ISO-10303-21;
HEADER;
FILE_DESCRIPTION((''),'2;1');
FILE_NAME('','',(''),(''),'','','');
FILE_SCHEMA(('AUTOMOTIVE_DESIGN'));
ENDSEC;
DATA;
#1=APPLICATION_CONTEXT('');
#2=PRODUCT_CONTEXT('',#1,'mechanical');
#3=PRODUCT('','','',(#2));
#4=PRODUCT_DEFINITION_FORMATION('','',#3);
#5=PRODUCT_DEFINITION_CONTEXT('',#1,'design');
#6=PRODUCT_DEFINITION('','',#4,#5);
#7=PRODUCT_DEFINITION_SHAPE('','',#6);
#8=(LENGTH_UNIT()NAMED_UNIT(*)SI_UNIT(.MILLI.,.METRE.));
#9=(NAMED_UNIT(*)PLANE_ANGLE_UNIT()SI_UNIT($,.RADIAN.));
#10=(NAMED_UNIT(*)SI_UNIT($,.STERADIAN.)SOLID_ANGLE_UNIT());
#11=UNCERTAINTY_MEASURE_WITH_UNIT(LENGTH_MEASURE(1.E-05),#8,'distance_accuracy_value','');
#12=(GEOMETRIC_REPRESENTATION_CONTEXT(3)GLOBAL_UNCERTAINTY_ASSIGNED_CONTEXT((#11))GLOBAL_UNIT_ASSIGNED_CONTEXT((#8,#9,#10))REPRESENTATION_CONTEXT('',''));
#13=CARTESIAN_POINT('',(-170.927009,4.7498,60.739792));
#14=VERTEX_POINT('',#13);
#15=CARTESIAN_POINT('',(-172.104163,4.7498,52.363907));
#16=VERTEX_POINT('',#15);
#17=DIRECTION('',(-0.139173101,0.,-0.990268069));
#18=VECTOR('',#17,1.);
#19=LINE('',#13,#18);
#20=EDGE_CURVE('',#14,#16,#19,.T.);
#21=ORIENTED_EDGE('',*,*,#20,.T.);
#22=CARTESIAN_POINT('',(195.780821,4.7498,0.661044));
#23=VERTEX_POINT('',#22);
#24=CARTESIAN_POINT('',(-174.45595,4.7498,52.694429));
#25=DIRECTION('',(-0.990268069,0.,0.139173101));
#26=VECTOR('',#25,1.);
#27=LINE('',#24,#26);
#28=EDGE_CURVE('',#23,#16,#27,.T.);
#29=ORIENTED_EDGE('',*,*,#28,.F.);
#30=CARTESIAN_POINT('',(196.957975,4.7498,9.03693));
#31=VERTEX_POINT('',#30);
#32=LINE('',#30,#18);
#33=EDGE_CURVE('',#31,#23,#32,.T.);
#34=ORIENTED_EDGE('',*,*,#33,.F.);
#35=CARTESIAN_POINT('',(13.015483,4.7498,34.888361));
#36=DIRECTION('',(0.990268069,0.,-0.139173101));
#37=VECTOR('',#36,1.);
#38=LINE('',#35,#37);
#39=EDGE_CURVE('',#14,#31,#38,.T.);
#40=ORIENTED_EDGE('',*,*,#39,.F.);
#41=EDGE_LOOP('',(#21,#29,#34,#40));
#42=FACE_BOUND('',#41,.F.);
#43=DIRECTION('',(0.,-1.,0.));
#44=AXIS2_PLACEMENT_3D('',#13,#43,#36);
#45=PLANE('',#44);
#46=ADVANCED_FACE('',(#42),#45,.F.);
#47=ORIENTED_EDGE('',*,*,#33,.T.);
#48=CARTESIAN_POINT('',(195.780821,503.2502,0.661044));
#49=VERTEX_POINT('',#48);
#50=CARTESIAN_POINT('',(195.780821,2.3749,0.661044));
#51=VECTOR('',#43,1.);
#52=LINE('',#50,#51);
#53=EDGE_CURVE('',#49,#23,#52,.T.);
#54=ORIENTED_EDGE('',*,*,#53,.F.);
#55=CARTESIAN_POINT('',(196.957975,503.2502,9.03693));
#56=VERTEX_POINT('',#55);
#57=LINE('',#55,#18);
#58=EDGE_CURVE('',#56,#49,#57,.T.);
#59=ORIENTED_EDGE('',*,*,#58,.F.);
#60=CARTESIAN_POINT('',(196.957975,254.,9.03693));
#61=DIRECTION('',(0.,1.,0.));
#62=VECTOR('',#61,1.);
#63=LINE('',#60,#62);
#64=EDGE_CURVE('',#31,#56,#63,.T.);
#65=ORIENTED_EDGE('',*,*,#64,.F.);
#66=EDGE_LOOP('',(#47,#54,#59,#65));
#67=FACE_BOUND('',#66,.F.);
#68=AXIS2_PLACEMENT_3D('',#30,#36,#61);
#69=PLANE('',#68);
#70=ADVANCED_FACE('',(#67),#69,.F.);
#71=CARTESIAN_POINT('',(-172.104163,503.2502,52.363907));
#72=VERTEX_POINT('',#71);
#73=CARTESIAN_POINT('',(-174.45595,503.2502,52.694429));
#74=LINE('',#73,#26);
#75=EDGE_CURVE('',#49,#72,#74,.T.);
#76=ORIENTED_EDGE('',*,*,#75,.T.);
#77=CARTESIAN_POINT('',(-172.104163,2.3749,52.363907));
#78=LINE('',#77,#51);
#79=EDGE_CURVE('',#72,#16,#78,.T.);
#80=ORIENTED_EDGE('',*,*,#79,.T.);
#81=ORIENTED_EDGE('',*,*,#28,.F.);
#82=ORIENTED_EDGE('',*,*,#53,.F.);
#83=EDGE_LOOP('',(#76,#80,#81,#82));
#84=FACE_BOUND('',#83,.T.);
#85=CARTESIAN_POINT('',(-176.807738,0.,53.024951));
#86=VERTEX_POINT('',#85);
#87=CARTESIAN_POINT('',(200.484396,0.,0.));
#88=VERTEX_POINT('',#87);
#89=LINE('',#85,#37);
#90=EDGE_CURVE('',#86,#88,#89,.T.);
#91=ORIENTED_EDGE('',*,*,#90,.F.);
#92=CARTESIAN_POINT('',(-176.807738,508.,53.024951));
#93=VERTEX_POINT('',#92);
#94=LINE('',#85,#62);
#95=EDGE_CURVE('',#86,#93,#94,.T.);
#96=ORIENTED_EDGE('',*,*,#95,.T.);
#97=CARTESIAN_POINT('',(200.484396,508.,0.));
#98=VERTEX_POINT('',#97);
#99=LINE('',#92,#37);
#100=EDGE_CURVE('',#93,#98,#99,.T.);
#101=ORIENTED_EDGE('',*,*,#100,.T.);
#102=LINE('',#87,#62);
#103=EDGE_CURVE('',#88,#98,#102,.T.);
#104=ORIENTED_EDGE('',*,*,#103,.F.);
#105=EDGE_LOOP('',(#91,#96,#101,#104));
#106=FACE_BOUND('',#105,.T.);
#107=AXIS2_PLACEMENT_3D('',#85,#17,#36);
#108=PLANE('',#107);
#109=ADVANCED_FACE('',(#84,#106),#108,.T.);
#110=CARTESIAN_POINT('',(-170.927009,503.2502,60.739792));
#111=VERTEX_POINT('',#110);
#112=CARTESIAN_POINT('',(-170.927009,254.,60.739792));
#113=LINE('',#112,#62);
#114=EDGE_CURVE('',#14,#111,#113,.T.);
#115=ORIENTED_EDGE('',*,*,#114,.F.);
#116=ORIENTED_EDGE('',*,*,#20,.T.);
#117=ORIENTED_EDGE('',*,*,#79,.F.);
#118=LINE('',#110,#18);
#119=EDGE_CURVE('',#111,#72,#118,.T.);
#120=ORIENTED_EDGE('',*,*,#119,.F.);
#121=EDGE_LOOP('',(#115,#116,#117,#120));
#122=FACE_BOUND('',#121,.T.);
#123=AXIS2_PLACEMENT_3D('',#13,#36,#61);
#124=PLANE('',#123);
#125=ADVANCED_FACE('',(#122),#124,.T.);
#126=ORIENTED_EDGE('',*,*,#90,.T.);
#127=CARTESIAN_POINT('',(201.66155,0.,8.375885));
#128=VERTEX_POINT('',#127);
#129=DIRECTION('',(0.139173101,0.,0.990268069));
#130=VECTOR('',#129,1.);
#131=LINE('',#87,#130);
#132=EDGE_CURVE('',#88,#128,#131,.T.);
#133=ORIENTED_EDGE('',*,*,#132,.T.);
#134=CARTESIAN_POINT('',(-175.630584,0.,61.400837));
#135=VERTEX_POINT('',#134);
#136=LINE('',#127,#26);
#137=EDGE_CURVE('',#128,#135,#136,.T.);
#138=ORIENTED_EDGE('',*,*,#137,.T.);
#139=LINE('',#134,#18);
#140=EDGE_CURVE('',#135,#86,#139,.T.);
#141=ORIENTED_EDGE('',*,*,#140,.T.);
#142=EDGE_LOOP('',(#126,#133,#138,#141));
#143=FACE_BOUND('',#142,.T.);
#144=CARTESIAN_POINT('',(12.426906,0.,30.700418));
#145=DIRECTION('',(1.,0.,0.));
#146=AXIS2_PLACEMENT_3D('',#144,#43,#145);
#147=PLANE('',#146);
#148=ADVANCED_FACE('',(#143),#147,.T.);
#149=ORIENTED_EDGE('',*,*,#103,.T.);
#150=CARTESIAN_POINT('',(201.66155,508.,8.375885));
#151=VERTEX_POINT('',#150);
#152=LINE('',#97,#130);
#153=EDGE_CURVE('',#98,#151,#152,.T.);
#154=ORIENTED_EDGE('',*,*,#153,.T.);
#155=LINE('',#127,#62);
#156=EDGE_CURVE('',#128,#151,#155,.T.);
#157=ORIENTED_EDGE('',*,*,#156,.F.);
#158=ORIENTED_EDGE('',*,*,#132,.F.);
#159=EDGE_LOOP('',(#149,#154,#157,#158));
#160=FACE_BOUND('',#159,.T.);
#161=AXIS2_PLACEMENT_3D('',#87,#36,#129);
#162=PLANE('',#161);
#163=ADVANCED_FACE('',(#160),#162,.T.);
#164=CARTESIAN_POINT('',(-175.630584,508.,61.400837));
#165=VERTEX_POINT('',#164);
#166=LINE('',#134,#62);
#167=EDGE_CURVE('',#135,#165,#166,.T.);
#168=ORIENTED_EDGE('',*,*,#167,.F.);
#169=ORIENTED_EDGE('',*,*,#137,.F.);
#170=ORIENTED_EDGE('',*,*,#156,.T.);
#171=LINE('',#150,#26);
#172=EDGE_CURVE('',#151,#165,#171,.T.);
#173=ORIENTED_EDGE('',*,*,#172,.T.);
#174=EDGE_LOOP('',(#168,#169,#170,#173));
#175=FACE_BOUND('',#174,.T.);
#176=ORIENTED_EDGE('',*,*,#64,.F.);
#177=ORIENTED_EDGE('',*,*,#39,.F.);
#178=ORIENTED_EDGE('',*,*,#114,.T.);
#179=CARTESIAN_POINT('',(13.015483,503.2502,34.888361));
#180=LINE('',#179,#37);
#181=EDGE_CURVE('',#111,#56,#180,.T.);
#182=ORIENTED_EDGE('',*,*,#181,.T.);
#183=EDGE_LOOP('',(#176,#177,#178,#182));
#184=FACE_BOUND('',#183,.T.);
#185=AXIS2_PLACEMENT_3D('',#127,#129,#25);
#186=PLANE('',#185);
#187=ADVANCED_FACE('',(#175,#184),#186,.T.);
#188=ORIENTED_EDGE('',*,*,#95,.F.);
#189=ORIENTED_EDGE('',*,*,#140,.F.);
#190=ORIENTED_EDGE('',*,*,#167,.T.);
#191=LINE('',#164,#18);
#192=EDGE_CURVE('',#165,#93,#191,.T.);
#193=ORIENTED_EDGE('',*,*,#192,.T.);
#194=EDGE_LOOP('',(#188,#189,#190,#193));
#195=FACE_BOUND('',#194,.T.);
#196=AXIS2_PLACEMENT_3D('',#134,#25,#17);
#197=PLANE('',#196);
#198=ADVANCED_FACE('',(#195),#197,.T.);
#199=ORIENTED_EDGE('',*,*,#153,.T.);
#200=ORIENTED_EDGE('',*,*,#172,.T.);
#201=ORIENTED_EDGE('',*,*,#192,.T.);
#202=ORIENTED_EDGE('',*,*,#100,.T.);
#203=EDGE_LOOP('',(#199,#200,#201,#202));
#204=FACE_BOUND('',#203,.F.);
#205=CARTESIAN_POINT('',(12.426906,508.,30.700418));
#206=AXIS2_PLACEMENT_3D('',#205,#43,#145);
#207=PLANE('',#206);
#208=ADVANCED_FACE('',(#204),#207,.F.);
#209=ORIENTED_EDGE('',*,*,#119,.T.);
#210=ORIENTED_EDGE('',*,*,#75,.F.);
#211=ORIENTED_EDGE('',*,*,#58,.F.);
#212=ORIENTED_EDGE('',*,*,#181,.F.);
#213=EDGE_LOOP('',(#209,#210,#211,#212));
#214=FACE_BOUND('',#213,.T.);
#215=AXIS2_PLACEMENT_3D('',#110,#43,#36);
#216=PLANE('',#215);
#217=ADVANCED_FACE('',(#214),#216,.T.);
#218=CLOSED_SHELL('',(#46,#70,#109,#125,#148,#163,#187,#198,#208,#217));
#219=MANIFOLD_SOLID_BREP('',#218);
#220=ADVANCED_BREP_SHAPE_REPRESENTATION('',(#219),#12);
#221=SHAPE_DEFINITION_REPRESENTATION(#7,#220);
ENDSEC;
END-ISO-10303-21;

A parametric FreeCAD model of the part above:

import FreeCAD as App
import Part
import Sketcher
Q = App.Units.Quantity

doc = App.newDocument("Part")
body = doc.addObject("PartDesign::Body", "Body")

# Sketch on XZ plane
sketch1 = body.newObject("Sketcher::SketchObject", "Sketch")
sketch1.AttachmentSupport = (doc.getObject("XZ_Plane"), [""])
sketch1.MapMode = "FlatFace"
sketch1.addGeometry([
    Part.LineSegment(App.Vector(-176, 61, 0), App.Vector(-177, 53, 0)),
    Part.LineSegment(App.Vector(-177, 53, 0), App.Vector(200, 0, 0)),
    Part.LineSegment(App.Vector(200, 0, 0), App.Vector(202, 8, 0)),
    Part.LineSegment(App.Vector(202, 8, 0), App.Vector(-176, 61, 0)),
], False)
sketch1.addConstraint([
    Sketcher.Constraint("Coincident", 0, 2, 1, 1),
    Sketcher.Constraint("Coincident", 1, 2, 2, 1),
    Sketcher.Constraint("Coincident", 2, 2, 3, 1),
    Sketcher.Constraint("Coincident", 3, 2, 0, 1),
    Sketcher.Constraint("PointOnObject", 1, 2, -1),
    Sketcher.Constraint("Perpendicular", 0, 1),
    Sketcher.Constraint("Perpendicular", 1, 2),
    Sketcher.Constraint("Perpendicular", 2, 3),
    Sketcher.Constraint("Distance", 1, Q("15 in")),
    Sketcher.Constraint("Angle", 0, Q("-98 deg")),
    Sketcher.Constraint("Distance", 0, Q("0.333 in")),
    Sketcher.Constraint("DistanceX", -1, 1, 2, 2, 201.66155),
])
pad1 = body.newObject("PartDesign::Pad", "Pad")
pad1.Profile = sketch1
pad1.Length = Q("20 in")
pad1.Reversed = True

# Sketch on an angled plane
sketch2 = body.newObject("Sketcher::SketchObject", "Sketch001")
sketch2.Placement = App.Placement(App.Vector(5.060367, 0, 36.00638), App.Rotation(App.Vector(0.990268069, 0, -0.139173101), App.Vector(0, 1.000000001, 0), App.Vector(0.139173101, 0, 0.990268069), "ZXY"))
sketch2.addGeometry([
    Part.LineSegment(App.Vector(-178, 503, 0), App.Vector(-178, 5, 0)),
    Part.LineSegment(App.Vector(-178, 5, 0), App.Vector(194, 5, 0)),
    Part.LineSegment(App.Vector(194, 5, 0), App.Vector(194, 503, 0)),
    Part.LineSegment(App.Vector(194, 503, 0), App.Vector(-178, 503, 0)),
], False)
sketch2.addConstraint([
    Sketcher.Constraint("Coincident", 0, 2, 1, 1),
    Sketcher.Constraint("Coincident", 1, 2, 2, 1),
    Sketcher.Constraint("Coincident", 2, 2, 3, 1),
    Sketcher.Constraint("Coincident", 3, 2, 0, 1),
    Sketcher.Constraint("Vertical", 0),
    Sketcher.Constraint("Horizontal", 1),
    Sketcher.Constraint("Vertical", 2),
    Sketcher.Constraint("Horizontal", 3),
    Sketcher.Constraint("DistanceX", 1, 1, 1, 2, Q("14.626 in")),
    Sketcher.Constraint("DistanceY", 0, 2, 0, 1, Q("19.626 in")),
    Sketcher.Constraint("DistanceY", -1, 1, 0, 2, Q("0.187 in")),
    Sketcher.Constraint("DistanceX", 0, 2, -1, 1, 177.716904),
])
pocket1 = body.newObject("PartDesign::Pocket", "Pocket")
pocket1.Profile = sketch2
pocket1.Length = Q("1 in")

doc.recompute()
